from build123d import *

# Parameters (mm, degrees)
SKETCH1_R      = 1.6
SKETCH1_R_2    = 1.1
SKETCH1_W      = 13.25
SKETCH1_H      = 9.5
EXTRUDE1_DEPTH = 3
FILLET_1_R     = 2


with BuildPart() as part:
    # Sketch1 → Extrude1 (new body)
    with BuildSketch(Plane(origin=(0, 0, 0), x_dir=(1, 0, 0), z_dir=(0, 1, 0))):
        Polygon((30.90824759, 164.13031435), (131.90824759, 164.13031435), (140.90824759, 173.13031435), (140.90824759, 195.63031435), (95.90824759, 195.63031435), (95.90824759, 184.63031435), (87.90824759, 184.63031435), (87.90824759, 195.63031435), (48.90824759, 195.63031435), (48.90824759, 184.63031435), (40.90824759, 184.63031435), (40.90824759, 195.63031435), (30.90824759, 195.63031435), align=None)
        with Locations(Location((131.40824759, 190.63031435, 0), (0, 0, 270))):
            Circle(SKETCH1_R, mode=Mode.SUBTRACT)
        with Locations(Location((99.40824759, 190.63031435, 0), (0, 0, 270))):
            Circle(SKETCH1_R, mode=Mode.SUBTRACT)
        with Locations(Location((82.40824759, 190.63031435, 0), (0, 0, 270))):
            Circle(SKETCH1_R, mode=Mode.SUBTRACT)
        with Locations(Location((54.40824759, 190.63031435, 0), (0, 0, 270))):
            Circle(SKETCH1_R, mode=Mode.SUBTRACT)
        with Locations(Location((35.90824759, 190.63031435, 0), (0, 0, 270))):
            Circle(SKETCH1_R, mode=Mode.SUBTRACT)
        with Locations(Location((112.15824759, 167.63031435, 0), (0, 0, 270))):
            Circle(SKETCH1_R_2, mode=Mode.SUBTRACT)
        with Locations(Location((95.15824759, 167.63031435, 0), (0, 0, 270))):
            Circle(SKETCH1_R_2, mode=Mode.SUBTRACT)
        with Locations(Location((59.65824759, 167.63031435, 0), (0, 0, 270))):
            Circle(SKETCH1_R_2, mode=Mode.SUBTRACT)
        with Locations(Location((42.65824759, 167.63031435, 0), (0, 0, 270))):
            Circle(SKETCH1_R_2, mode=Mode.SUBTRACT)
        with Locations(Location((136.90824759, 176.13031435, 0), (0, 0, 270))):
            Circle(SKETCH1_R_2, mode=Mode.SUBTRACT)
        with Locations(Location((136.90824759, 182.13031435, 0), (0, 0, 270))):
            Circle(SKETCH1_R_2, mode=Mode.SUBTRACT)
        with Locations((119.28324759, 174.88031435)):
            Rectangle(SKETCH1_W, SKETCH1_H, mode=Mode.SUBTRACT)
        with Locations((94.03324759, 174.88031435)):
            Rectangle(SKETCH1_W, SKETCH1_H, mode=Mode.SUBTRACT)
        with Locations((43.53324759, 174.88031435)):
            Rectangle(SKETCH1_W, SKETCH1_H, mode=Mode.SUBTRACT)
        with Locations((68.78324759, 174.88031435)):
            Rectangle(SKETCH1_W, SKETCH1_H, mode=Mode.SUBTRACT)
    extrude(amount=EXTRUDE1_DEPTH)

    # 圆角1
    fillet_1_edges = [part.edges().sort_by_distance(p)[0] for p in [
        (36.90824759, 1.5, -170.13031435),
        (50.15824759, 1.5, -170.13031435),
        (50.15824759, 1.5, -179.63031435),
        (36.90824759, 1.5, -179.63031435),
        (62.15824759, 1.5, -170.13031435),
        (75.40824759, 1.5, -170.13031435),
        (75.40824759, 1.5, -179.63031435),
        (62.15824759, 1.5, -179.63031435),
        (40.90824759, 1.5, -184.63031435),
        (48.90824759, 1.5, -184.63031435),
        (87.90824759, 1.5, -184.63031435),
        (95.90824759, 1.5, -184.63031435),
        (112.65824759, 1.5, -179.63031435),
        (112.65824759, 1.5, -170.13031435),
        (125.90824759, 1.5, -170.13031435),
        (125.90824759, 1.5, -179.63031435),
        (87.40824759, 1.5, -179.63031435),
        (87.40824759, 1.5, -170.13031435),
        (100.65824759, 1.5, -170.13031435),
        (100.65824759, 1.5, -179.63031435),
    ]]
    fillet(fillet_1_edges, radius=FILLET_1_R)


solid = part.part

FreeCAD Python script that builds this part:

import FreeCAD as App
import Part
import Sketcher
from FreeCAD import Vector
Q = App.Units.Quantity


def edges_at(feature, points):
    """Names of the edges that pass closest to the given points."""
    edges = feature.Shape.Edges
    near = lambda p: min(range(len(edges)), key=lambda i: edges[i].distToShape(Part.Vertex(*p))[0])
    return sorted({f"Edge{near(p) + 1}" for p in points})


def add_polygon(sketch, points):
    """Adds a closed chain of lines whose ends are joined by coincident constraints."""
    first, n = sketch.GeometryCount, len(points)
    for a, b in zip(points, points[1:] + points[:1]):
        sketch.addGeometry(Part.LineSegment(App.Vector(*a, 0), App.Vector(*b, 0)), False)
    for i in range(n):
        sketch.addConstraint(Sketcher.Constraint("Coincident", first + i, 2, first + (i + 1) % n, 1))

doc = App.newDocument("Part")
body = doc.addObject("PartDesign::Body", "Body")

# Sketch on XZ plane
sketch1 = doc.addObject("Sketcher::SketchObject", "Sketch")
body.addObject(sketch1)
sketch1.AttachmentSupport = (doc.XZ_Plane, [""])
sketch1.MapMode = "FlatFace"
add_polygon(sketch1, [(30.9, -164.1), (131.9, -164.1), (140.9, -173.1), (140.9, -195.6), (95.9, -195.6), (95.9, -184.6), (87.9, -184.6), (87.9, -195.6), (48.9, -195.6), (48.9, -184.6), (40.9, -184.6), (40.9, -195.6), (30.9, -195.6)])  # lines 0-12
sketch1.addGeometry(Part.Circle(Vector(42.7, -167.6, 0), Vector(0, 0, 1), 1.1), False)  # 13
sketch1.addGeometry(Part.Circle(Vector(59.7, -167.6, 0), Vector(0, 0, 1), 1.1), False)  # 14
add_polygon(sketch1, [(50.2, -170.1), (36.9, -170.1), (36.9, -179.6), (50.2, -179.6)])  # lines 15-18
add_polygon(sketch1, [(75.4, -170.1), (62.2, -170.1), (62.2, -179.6), (75.4, -179.6)])  # lines 19-22
sketch1.addGeometry(Part.Circle(Vector(95.2, -167.6, 0), Vector(0, 0, 1), 1.1), False)  # 23
sketch1.addGeometry(Part.Circle(Vector(112.2, -167.6, 0), Vector(0, 0, 1), 1.1), False)  # 24
add_polygon(sketch1, [(100.7, -170.1), (87.4, -170.1), (87.4, -179.6), (100.7, -179.6)])  # lines 25-28
add_polygon(sketch1, [(125.9, -170.1), (112.7, -170.1), (112.7, -179.6), (125.9, -179.6)])  # lines 29-32
sketch1.addGeometry(Part.Circle(Vector(136.9, -176.1, 0), Vector(0, 0, 1), 1.1), False)  # 33
sketch1.addGeometry(Part.Circle(Vector(35.9, -190.6, 0), Vector(0, 0, 1), 1.6), False)  # 34
sketch1.addGeometry(Part.Circle(Vector(54.4, -190.6, 0), Vector(0, 0, 1), 1.6), False)  # 35
sketch1.addGeometry(Part.Circle(Vector(82.4, -190.6, 0), Vector(0, 0, 1), 1.6), False)  # 36
sketch1.addGeometry(Part.Circle(Vector(136.9, -182.1, 0), Vector(0, 0, 1), 1.1), False)  # 37
sketch1.addGeometry(Part.Circle(Vector(99.4, -190.6, 0), Vector(0, 0, 1), 1.6), False)  # 38
sketch1.addGeometry(Part.Circle(Vector(131.4, -190.6, 0), Vector(0, 0, 1), 1.6), False)  # 39
sketch1.addConstraint([
    Sketcher.Constraint("Horizontal", 0),
    Sketcher.Constraint("Vertical", 2),
    Sketcher.Constraint("Horizontal", 3),
    Sketcher.Constraint("Vertical", 4),
    Sketcher.Constraint("Horizontal", 5),
    Sketcher.Constraint("Vertical", 6),
    Sketcher.Constraint("Horizontal", 7),
    Sketcher.Constraint("Vertical", 8),
    Sketcher.Constraint("Horizontal", 9),
    Sketcher.Constraint("Vertical", 10),
    Sketcher.Constraint("Horizontal", 11),
    Sketcher.Constraint("Vertical", 12),
    Sketcher.Constraint("Horizontal", 15),
    Sketcher.Constraint("Vertical", 16),
    Sketcher.Constraint("Horizontal", 17),
    Sketcher.Constraint("Vertical", 18),
    Sketcher.Constraint("Horizontal", 19),
    Sketcher.Constraint("Vertical", 20),
    Sketcher.Constraint("Horizontal", 21),
    Sketcher.Constraint("Vertical", 22),
    Sketcher.Constraint("Horizontal", 25),
    Sketcher.Constraint("Vertical", 26),
    Sketcher.Constraint("Horizontal", 27),
    Sketcher.Constraint("Vertical", 28),
    Sketcher.Constraint("Horizontal", 29),
    Sketcher.Constraint("Vertical", 30),
    Sketcher.Constraint("Horizontal", 31),
    Sketcher.Constraint("Vertical", 32),
    Sketcher.Constraint("Equal", 13, 14),
    Sketcher.Constraint("Equal", 14, 23),
    Sketcher.Constraint("Equal", 23, 24),
    Sketcher.Constraint("Equal", 24, 33),
    Sketcher.Constraint("Equal", 34, 35),
    Sketcher.Constraint("Equal", 35, 36),
    Sketcher.Constraint("Equal", 33, 37),
    Sketcher.Constraint("Equal", 36, 38),
    Sketcher.Constraint("Equal", 38, 39),
    Sketcher.Constraint("Horizontal", 13, 3, 14, 3),
    Sketcher.Constraint("Horizontal", 14, 3, 23, 3),
    Sketcher.Constraint("Horizontal", 23, 3, 24, 3),
    Sketcher.Constraint("Horizontal", 34, 3, 35, 3),
    Sketcher.Constraint("Horizontal", 35, 3, 36, 3),
    Sketcher.Constraint("Horizontal", 36, 3, 38, 3),
    Sketcher.Constraint("Horizontal", 38, 3, 39, 3),
    Sketcher.Constraint("Horizontal", 3, 2, 6, 2),
    Sketcher.Constraint("Horizontal", 5, 2, 8, 2),
    Sketcher.Constraint("Horizontal", 7, 2, 10, 2),
    Sketcher.Constraint("Horizontal", 18, 2, 19, 2),
    Sketcher.Constraint("Horizontal", 17, 2, 20, 2),
    Sketcher.Constraint("Horizontal", 22, 2, 25, 2),
    Sketcher.Constraint("Horizontal", 21, 2, 26, 2),
    Sketcher.Constraint("Horizontal", 28, 2, 29, 2),
    Sketcher.Constraint("Horizontal", 27, 2, 30, 2),
    Sketcher.Constraint("Vertical", 33, 3, 37, 3),
    Sketcher.Constraint("Equal", 5, 9),
    Sketcher.Constraint("Equal", 17, 19),
    Sketcher.Constraint("Equal", 21, 25),
    Sketcher.Constraint("Equal", 27, 29),
    Sketcher.Constraint("Diameter", 13, 2.2),
    Sketcher.Constraint("Diameter", 34, 3.2),
    Sketcher.Constraint("DistanceX", 0, 1, 0, 2, 101.0),
    Sketcher.Constraint("DistanceX", 3, 2, 3, 1, 45.0),
    Sketcher.Constraint("DistanceX", 5, 2, 5, 1, 8.0),
    Sketcher.Constraint("DistanceX", 7, 2, 7, 1, 39.0),
    Sketcher.Constraint("DistanceX", 11, 2, 11, 1, 10.0),
    Sketcher.Constraint("DistanceY", 4, 1, 4, 2, 11.0),
    Sketcher.Constraint("Angle", 1, Q("-45 deg")),
    Sketcher.Constraint("DistanceY", 2, 2, 2, 1, 22.5),
    Sketcher.Constraint("DistanceY", 16, 2, 16, 1, 9.5),
    Sketcher.Constraint("DistanceX", 13, 3, 14, 3, 17.0),
    Sketcher.Constraint("DistanceX", 23, 3, 24, 3, 17.0),
    Sketcher.Constraint("DistanceY", 34, 3, 13, 3, 23.0),
    Sketcher.Constraint("DistanceX", 34, 3, 33, 3, 101.0),
    Sketcher.Constraint("DistanceX", 35, 3, 36, 3, 28.0),
    Sketcher.Constraint("DistanceY", 37, 3, 33, 3, 6.0),
    Sketcher.Constraint("DistanceX", 36, 3, 38, 3, 17.0),
    Sketcher.Constraint("DistanceX", 38, 3, 39, 3, 32.0),
    Sketcher.Constraint("DistanceX", 0, 2, 33, 3, 5.0),
    Sketcher.Constraint("DistanceY", 33, 3, 0, 2, 12.0),
    Sketcher.Constraint("DistanceY", 2, 2, 39, 3, 5.0),
    Sketcher.Constraint("DistanceX", 12, 2, 15, 2, 6.0),
    Sketcher.Constraint("DistanceY", 15, 2, 12, 2, 6.0),
    Sketcher.Constraint("DistanceX", 18, 2, 19, 2, 12.0),
    Sketcher.Constraint("DistanceX", 21, 2, 36, 3, 7.0),
    Sketcher.Constraint("DistanceX", 22, 2, 25, 2, 12.0),
    Sketcher.Constraint("DistanceX", 28, 2, 29, 2, 12.0),
    Sketcher.Constraint("DistanceX", 31, 2, 37, 3, 11.0),
    Sketcher.Constraint("DistanceX", 14, 3, 23, 3, 35.5),
    Sketcher.Constraint("DistanceX", 13, 3, 17, 2, 7.5),
    Sketcher.Constraint("DistanceX", -1, 1, 13, 3, 42.658248),
    Sketcher.Constraint("DistanceY", 13, 3, -1, 1, 167.630314),
])
pad1 = doc.addObject("PartDesign::Pad", "Pad")
body.addObject(pad1)
pad1.Profile = sketch1
pad1.Length = 3
pad1.Reversed = True
doc.recompute()

fillet = doc.addObject("PartDesign::Fillet", "Fillet")
body.addObject(fillet)
fillet.Base = (pad1, edges_at(pad1, [
    (36.908, 1.5, -170.13),
    (50.158, 1.5, -170.13),
    (50.158, 1.5, -179.63),
    (36.908, 1.5, -179.63),
    (62.158, 1.5, -170.13),
    (75.408, 1.5, -170.13),
    (75.408, 1.5, -179.63),
    (62.158, 1.5, -179.63),
    (40.908, 1.5, -184.63),
    (48.908, 1.5, -184.63),
    (87.908, 1.5, -184.63),
    (95.908, 1.5, -184.63),
    (112.658, 1.5, -179.63),
    (112.658, 1.5, -170.13),
    (125.908, 1.5, -170.13),
    (125.908, 1.5, -179.63),
    (87.408, 1.5, -179.63),
    (87.408, 1.5, -170.13),
    (100.658, 1.5, -170.13),
    (100.658, 1.5, -179.63),
]))
fillet.Radius = 2

doc.recompute()
